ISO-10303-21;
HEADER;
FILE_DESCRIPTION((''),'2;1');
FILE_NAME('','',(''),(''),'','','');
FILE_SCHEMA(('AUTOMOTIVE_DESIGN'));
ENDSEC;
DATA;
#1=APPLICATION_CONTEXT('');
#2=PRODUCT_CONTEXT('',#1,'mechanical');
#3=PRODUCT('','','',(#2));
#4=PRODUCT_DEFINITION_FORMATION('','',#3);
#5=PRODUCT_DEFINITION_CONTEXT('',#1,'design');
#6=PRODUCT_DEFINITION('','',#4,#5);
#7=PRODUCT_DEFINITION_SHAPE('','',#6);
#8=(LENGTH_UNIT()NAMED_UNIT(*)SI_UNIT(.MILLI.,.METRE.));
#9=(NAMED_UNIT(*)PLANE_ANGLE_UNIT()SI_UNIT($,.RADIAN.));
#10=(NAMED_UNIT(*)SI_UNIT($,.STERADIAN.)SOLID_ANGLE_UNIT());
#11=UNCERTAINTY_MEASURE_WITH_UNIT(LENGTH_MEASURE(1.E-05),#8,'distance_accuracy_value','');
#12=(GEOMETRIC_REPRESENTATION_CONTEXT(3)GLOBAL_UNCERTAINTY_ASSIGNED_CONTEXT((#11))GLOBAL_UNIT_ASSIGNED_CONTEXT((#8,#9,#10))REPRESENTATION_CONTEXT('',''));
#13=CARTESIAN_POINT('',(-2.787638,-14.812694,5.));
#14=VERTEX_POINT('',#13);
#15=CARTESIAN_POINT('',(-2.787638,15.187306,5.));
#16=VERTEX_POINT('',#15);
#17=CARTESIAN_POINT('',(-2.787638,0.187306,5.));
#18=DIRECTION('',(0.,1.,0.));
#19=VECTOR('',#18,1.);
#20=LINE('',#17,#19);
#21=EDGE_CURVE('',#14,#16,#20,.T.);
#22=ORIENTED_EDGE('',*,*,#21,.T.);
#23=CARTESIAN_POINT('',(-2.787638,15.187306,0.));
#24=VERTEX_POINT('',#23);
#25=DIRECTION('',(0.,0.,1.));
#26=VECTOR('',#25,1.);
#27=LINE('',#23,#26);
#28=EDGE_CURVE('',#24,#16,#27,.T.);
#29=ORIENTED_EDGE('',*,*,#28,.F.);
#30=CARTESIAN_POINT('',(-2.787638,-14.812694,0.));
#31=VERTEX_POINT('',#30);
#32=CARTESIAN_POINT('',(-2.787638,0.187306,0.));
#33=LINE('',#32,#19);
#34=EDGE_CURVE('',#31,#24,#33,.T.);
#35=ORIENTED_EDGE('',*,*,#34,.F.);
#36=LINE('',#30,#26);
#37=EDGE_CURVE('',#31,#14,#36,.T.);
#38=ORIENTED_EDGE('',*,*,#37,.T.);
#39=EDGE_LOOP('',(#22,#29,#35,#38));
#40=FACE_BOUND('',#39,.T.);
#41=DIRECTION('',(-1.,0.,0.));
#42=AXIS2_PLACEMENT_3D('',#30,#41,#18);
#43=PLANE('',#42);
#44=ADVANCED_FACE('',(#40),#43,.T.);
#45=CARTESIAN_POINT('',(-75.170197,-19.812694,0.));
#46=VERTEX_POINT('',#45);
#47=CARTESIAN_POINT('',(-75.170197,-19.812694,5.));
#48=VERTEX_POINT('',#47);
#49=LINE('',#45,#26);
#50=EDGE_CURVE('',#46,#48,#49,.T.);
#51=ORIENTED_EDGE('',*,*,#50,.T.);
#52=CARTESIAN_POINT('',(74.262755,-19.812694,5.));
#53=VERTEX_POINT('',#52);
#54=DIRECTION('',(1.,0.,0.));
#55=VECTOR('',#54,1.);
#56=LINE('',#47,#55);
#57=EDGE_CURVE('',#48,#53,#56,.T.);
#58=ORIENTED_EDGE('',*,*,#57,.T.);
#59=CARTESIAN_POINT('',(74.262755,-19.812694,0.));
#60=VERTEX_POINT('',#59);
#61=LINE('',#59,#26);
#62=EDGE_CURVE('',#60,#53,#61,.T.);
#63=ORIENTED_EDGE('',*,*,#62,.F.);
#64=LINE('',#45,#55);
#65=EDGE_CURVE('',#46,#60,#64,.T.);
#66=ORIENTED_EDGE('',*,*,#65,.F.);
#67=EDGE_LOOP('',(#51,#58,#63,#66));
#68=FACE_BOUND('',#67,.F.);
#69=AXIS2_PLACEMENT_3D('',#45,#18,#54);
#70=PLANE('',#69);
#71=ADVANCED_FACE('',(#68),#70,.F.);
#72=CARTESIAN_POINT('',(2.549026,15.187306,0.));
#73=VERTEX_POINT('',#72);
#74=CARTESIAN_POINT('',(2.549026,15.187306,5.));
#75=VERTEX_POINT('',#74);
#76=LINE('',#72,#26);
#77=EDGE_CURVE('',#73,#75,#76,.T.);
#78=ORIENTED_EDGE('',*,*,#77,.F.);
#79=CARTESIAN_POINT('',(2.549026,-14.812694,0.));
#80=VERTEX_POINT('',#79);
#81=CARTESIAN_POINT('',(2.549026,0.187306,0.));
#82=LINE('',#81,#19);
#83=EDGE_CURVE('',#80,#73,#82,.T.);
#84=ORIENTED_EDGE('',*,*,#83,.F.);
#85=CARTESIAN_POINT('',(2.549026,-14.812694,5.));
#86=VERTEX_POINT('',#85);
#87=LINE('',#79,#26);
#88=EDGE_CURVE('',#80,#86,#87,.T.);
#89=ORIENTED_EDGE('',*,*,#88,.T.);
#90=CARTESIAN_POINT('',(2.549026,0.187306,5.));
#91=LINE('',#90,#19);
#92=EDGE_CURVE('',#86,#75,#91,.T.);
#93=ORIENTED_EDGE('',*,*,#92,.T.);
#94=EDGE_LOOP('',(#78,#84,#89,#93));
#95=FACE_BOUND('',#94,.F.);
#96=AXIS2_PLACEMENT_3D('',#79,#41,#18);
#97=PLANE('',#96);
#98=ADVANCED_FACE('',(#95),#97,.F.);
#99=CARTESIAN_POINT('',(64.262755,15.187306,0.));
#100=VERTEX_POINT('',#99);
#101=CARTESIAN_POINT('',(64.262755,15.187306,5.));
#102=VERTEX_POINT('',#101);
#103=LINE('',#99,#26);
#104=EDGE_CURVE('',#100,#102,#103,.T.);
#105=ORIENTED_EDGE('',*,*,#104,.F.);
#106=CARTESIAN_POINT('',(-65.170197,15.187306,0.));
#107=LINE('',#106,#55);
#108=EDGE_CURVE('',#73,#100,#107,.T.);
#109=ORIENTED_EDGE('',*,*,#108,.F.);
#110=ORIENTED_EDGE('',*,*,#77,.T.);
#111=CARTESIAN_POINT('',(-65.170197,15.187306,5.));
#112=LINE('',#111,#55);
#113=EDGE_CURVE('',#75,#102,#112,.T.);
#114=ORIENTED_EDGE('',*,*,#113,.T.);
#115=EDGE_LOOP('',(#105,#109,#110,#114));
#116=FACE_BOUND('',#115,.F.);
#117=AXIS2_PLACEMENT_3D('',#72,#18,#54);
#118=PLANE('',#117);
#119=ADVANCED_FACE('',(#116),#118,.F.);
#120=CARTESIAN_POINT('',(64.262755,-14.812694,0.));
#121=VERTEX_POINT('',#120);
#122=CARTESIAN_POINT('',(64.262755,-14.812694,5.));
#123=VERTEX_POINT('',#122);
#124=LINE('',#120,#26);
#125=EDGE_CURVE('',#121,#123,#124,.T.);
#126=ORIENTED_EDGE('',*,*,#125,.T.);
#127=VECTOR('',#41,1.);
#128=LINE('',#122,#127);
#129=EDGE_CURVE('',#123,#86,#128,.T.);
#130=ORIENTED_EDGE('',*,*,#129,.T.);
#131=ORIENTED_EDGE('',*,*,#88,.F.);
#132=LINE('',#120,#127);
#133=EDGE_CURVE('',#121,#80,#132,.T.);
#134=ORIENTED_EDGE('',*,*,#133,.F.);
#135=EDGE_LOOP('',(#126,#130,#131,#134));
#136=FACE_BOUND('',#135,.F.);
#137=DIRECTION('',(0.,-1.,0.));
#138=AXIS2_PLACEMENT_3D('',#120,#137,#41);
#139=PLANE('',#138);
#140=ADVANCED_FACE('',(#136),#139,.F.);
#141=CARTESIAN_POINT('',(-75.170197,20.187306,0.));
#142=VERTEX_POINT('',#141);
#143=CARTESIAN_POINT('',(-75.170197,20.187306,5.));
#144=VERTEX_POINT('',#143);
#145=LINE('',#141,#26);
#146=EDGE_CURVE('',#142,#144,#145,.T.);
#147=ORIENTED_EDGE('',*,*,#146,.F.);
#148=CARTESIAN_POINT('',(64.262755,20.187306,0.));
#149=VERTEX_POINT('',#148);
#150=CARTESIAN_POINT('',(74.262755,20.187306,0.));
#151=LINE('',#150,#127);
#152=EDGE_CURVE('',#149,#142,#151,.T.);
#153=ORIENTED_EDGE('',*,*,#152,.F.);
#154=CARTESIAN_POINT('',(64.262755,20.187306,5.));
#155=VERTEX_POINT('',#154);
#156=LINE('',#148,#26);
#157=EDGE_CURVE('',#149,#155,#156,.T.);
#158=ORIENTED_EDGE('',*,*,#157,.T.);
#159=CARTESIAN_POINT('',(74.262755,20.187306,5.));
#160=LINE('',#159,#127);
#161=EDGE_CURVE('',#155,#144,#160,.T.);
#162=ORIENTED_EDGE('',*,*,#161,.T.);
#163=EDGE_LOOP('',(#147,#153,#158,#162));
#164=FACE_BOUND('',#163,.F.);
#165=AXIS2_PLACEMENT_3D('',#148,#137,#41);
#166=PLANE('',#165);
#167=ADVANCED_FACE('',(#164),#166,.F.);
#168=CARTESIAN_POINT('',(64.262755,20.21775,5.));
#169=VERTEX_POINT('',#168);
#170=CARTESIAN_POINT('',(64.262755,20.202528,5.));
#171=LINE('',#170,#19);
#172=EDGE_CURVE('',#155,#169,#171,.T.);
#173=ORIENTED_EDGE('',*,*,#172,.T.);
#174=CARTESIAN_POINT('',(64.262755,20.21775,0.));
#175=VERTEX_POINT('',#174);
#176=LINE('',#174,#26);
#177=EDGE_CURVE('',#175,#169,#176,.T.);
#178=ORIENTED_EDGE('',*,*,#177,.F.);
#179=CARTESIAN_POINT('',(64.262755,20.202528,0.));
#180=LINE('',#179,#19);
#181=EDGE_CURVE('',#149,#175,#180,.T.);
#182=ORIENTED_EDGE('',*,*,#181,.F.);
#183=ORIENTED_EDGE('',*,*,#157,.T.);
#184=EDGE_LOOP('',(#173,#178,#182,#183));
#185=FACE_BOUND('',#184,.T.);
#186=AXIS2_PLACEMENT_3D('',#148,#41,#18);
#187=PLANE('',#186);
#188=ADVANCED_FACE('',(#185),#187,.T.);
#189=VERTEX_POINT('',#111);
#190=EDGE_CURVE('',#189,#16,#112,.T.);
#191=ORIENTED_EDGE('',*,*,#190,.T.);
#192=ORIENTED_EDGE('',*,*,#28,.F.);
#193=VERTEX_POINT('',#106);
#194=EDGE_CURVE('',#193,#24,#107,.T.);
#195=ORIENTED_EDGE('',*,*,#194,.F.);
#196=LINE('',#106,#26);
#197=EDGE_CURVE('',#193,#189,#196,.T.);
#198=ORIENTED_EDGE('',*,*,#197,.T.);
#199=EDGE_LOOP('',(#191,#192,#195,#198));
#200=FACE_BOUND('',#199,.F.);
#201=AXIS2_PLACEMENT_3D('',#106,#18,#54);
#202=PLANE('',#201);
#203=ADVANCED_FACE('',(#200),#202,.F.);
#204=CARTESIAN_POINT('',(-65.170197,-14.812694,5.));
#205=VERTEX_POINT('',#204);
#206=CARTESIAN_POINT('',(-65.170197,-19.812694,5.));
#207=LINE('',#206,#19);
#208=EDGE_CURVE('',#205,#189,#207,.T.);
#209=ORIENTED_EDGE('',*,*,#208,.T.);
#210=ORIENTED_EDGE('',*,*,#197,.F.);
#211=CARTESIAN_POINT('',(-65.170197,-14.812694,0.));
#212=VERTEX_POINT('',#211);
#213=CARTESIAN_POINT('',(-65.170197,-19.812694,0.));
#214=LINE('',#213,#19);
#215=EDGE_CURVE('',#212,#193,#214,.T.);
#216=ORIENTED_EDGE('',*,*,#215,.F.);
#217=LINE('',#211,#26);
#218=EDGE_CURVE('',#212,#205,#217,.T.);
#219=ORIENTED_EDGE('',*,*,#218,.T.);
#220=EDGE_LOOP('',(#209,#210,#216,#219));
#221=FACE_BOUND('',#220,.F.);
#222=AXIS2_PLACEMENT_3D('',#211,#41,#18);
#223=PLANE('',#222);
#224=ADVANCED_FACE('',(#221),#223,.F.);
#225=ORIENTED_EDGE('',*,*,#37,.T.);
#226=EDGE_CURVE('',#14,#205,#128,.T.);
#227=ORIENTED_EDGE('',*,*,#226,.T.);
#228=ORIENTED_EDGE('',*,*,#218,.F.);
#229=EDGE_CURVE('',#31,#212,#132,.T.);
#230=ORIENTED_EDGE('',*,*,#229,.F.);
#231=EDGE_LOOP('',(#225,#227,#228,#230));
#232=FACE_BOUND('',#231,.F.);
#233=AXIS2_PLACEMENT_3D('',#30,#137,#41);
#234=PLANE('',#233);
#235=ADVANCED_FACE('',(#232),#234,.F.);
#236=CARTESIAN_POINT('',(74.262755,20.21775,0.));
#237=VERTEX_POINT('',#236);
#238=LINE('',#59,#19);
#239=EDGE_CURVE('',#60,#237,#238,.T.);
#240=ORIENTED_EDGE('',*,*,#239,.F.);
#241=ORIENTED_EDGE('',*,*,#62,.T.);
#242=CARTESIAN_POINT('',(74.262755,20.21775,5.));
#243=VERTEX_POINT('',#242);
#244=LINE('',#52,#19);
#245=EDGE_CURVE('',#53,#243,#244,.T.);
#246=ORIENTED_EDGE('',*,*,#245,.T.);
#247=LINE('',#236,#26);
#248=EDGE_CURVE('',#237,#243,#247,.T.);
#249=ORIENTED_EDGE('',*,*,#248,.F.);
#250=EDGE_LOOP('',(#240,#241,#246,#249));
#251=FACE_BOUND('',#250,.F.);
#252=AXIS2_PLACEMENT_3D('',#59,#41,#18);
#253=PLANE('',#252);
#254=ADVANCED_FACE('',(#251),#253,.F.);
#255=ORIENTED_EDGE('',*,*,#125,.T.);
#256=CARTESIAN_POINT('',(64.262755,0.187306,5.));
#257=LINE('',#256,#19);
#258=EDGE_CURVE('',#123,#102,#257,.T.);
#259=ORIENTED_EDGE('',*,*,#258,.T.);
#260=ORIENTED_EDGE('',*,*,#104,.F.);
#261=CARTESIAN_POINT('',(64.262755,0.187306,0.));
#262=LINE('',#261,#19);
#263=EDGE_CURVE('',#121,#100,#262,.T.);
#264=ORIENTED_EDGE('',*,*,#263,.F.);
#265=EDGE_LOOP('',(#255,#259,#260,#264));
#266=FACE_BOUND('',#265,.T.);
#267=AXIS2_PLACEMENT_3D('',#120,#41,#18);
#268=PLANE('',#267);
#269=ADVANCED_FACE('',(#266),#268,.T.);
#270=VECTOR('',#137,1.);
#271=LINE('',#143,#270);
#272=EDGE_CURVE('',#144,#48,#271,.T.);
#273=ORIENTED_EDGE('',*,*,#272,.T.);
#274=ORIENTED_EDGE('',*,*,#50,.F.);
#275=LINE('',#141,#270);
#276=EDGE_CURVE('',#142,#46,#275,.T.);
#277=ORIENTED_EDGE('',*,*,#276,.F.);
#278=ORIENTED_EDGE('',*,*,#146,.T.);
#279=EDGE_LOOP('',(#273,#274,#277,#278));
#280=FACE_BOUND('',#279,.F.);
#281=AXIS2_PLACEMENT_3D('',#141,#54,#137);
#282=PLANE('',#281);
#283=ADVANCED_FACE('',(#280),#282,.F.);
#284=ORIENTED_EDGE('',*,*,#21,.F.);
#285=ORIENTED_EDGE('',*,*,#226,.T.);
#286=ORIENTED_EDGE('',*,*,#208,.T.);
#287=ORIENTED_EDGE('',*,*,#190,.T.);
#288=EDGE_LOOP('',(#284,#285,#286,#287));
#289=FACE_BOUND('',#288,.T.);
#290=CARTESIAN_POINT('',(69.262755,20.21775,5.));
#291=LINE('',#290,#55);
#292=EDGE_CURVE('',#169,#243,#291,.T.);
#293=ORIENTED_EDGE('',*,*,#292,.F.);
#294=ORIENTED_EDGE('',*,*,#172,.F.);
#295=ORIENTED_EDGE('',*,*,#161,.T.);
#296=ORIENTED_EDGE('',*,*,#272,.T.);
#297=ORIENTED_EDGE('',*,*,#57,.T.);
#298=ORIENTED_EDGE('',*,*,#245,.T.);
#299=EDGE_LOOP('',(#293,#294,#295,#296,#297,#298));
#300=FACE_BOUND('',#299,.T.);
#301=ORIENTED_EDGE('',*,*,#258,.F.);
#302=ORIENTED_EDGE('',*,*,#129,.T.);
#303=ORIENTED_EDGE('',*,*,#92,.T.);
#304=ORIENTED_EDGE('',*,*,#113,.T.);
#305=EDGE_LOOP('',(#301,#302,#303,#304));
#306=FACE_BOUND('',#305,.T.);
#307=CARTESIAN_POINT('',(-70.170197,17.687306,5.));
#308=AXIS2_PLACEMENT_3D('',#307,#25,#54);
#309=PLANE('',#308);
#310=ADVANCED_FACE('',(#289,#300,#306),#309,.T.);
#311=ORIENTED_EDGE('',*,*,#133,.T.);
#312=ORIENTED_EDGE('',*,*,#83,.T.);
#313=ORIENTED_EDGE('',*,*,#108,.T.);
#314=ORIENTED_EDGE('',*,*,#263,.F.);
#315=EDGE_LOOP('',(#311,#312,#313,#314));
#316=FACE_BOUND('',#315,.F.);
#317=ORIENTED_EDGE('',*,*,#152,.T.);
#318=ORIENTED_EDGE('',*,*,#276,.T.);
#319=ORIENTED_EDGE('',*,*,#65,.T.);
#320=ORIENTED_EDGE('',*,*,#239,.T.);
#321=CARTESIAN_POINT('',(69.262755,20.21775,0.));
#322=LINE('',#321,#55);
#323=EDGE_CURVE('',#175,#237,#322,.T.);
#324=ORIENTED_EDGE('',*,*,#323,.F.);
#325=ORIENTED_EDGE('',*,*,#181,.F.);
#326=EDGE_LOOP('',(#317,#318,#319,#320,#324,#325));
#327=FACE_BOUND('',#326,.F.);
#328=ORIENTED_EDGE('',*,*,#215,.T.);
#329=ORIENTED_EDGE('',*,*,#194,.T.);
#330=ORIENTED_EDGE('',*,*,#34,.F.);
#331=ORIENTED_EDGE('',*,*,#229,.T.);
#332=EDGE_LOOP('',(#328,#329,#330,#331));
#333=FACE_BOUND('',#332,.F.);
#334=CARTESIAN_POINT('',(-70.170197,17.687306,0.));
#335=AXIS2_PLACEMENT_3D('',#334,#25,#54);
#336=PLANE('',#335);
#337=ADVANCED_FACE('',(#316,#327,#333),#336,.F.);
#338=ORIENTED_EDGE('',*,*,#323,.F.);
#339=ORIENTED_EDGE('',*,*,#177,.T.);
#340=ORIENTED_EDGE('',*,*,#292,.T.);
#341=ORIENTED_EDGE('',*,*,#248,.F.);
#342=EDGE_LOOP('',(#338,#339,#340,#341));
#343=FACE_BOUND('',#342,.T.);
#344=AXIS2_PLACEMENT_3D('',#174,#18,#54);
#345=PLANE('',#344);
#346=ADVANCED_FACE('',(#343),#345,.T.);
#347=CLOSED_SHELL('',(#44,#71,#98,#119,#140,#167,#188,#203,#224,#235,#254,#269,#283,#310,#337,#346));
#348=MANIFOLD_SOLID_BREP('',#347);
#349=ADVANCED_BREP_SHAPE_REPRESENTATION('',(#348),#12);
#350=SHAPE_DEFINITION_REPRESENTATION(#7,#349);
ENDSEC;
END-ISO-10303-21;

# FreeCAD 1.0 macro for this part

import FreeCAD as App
import Part
import Sketcher
Q = App.Units.Quantity

doc = App.newDocument("Part")
body = doc.addObject("PartDesign::Body", "Body")

# Sketch on XY plane
sketch1 = doc.addObject("Sketcher::SketchObject", "Sketch")
body.addObject(sketch1)
sketch1.AttachmentSupport = (doc.XY_Plane, [""])
sketch1.MapMode = "FlatFace"
sketch1.addGeometry([
    Part.LineSegment(App.Vector(74.263, -19.813, 0), App.Vector(74.263, 20.218, 0)),  # 0
    Part.LineSegment(App.Vector(74.263, 20.218, 0), App.Vector(64.263, 20.218, 0)),  # 1
    Part.LineSegment(App.Vector(64.263, 20.218, 0), App.Vector(64.263, 20.187, 0)),  # 2
    Part.LineSegment(App.Vector(64.263, 20.187, 0), App.Vector(-75.17, 20.187, 0)),  # 3
    Part.LineSegment(App.Vector(-75.17, 20.187, 0), App.Vector(-75.17, -19.813, 0)),  # 4
    Part.LineSegment(App.Vector(-75.17, -19.813, 0), App.Vector(74.263, -19.813, 0)),  # 5
    Part.LineSegment(App.Vector(64.263, 15.187, 0), App.Vector(64.263, -14.813, 0)),  # 6
    Part.LineSegment(App.Vector(64.263, -14.813, 0), App.Vector(2.549, -14.813, 0)),  # 7
    Part.LineSegment(App.Vector(2.549, -14.813, 0), App.Vector(2.549, 15.187, 0)),  # 8
    Part.LineSegment(App.Vector(2.549, 15.187, 0), App.Vector(64.263, 15.187, 0)),  # 9
    Part.LineSegment(App.Vector(-2.788, -14.813, 0), App.Vector(-65.17, -14.813, 0)),  # 10
    Part.LineSegment(App.Vector(-65.17, -14.813, 0), App.Vector(-65.17, 15.187, 0)),  # 11
    Part.LineSegment(App.Vector(-65.17, 15.187, 0), App.Vector(-2.788, 15.187, 0)),  # 12
    Part.LineSegment(App.Vector(-2.788, 15.187, 0), App.Vector(-2.788, -14.813, 0)),  # 13
], False)
sketch1.addConstraint([
    Sketcher.Constraint("Coincident", 0, 2, 1, 1),
    Sketcher.Constraint("Coincident", 1, 2, 2, 1),
    Sketcher.Constraint("Coincident", 2, 2, 3, 1),
    Sketcher.Constraint("Coincident", 3, 2, 4, 1),
    Sketcher.Constraint("Coincident", 4, 2, 5, 1),
    Sketcher.Constraint("Coincident", 5, 2, 0, 1),
    Sketcher.Constraint("Coincident", 6, 2, 7, 1),
    Sketcher.Constraint("Coincident", 7, 2, 8, 1),
    Sketcher.Constraint("Coincident", 8, 2, 9, 1),
    Sketcher.Constraint("Coincident", 9, 2, 6, 1),
    Sketcher.Constraint("Coincident", 10, 2, 11, 1),
    Sketcher.Constraint("Coincident", 11, 2, 12, 1),
    Sketcher.Constraint("Coincident", 12, 2, 13, 1),
    Sketcher.Constraint("Coincident", 13, 2, 10, 1),
    Sketcher.Constraint("Vertical", 0),
    Sketcher.Constraint("Horizontal", 1),
    Sketcher.Constraint("Vertical", 2),
    Sketcher.Constraint("Horizontal", 3),
    Sketcher.Constraint("Vertical", 4),
    Sketcher.Constraint("Horizontal", 5),
    Sketcher.Constraint("Vertical", 6),
    Sketcher.Constraint("Horizontal", 7),
    Sketcher.Constraint("Vertical", 8),
    Sketcher.Constraint("Horizontal", 9),
    Sketcher.Constraint("Horizontal", 10),
    Sketcher.Constraint("Vertical", 11),
    Sketcher.Constraint("Horizontal", 12),
    Sketcher.Constraint("Vertical", 13),
    Sketcher.Constraint("Horizontal", 7, 2, 10, 2),
    Sketcher.Constraint("Horizontal", 9, 2, 11, 2),
    Sketcher.Constraint("Vertical", 2, 2, 6, 2),
    Sketcher.Constraint("DistanceX", 1, 2, 1, 1, Q("10 mm")),
    Sketcher.Constraint("DistanceY", 4, 2, 4, 1, Q("40 mm")),
    Sketcher.Constraint("DistanceY", 6, 2, 6, 1, Q("30 mm")),
    Sketcher.Constraint("DistanceY", 5, 2, 6, 2, Q("5 mm")),
    Sketcher.Constraint("DistanceX", 4, 2, 10, 2, Q("10 mm")),
    Sketcher.Constraint("DistanceX", 3, 2, 3, 1, Q("139.432952 mm")),
    Sketcher.Constraint("DistanceX", 7, 2, 7, 1, Q("61.71373 mm")),
    Sketcher.Constraint("DistanceX", 10, 2, 10, 1, Q("62.382558 mm")),
    Sketcher.Constraint("DistanceY", 0, 1, 0, 2, Q("40.030444 mm")),
    Sketcher.Constraint("DistanceY", -1, 1, 0, 2, Q("20.21775 mm")),
    Sketcher.Constraint("DistanceX", 12, 2, -1, 1, Q("2.787638 mm")),
])
pad1 = doc.addObject("PartDesign::Pad", "Pad")
body.addObject(pad1)
pad1.Profile = sketch1
pad1.Length = 5

doc.recompute()
